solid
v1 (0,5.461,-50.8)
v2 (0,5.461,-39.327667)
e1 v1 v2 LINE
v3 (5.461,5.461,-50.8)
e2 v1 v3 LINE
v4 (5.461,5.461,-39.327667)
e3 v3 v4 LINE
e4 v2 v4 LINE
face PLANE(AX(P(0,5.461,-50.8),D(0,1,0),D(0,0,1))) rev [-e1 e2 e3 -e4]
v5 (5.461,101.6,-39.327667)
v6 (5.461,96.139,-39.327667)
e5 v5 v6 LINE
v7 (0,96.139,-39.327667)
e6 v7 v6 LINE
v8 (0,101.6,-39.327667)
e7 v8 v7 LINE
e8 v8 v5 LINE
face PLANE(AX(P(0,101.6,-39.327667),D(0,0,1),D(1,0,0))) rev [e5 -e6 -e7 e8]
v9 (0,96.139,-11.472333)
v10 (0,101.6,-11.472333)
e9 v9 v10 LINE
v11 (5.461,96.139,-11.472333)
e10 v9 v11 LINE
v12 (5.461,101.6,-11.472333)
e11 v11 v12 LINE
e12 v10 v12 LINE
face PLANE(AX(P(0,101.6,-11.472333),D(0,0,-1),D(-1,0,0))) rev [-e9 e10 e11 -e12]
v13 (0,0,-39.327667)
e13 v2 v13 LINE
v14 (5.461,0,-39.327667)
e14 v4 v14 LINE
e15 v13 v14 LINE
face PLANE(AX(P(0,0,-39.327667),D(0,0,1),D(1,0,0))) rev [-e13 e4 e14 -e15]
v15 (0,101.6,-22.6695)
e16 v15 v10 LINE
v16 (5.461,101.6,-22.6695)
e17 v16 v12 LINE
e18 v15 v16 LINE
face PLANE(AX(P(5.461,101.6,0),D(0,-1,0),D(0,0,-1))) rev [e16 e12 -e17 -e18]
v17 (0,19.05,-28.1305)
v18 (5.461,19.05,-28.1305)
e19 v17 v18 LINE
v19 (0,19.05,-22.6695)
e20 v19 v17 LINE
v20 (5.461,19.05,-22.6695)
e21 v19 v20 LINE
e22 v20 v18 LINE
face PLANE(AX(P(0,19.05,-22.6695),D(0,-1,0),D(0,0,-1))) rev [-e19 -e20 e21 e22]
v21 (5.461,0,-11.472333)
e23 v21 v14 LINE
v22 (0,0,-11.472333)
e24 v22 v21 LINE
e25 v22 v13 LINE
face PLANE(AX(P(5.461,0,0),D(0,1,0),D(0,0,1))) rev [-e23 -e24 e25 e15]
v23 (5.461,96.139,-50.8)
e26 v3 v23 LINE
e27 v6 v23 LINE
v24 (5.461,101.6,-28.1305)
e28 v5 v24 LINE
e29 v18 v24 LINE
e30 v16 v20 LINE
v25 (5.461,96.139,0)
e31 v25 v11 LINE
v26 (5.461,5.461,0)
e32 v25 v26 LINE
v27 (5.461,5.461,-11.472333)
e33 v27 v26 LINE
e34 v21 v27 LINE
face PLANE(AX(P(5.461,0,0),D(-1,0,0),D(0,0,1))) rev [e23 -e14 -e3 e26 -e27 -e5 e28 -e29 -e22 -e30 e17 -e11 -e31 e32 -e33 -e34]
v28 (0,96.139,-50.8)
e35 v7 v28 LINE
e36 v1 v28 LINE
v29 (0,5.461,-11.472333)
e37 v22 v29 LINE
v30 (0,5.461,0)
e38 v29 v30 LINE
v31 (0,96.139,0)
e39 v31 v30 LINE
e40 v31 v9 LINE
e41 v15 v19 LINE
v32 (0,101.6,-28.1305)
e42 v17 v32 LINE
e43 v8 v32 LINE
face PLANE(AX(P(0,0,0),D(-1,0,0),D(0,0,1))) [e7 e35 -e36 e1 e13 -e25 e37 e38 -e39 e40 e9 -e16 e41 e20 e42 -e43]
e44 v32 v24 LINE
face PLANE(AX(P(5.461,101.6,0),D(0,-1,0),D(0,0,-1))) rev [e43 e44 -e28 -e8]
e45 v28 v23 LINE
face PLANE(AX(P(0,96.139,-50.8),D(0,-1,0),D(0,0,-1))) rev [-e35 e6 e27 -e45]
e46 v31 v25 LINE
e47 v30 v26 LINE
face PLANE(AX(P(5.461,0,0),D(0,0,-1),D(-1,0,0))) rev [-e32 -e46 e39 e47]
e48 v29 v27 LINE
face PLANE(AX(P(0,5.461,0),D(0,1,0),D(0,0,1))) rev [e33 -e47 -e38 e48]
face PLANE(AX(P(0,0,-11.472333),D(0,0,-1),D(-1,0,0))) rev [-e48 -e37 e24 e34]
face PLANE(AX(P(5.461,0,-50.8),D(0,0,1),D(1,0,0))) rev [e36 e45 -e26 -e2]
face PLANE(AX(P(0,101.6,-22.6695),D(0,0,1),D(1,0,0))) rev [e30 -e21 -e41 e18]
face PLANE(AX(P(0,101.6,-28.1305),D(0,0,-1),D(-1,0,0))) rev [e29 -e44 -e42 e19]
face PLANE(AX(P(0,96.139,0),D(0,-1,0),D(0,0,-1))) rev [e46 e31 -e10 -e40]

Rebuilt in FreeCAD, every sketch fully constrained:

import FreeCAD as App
import Part
import Sketcher
Q = App.Units.Quantity


def add_polygon(sketch, points):
    """Adds a closed chain of lines whose ends are joined by coincident constraints."""
    first, n = sketch.GeometryCount, len(points)
    for a, b in zip(points, points[1:] + points[:1]):
        sketch.addGeometry(Part.LineSegment(App.Vector(*a, 0), App.Vector(*b, 0)), False)
    for i in range(n):
        sketch.addConstraint(Sketcher.Constraint("Coincident", first + i, 2, first + (i + 1) % n, 1))

doc = App.newDocument("Part")
params = doc.addObject("Spreadsheet::Sheet", "Params")
for row, (alias, value) in enumerate([
    ("sketch1_width", "4 in"),
    ("sketch1_height", "2 in"),
    ("pad1_length", "0.215 in"),
    ("sketch2_width", "3.25 in"),
    ("sketch2_width2", "0.215 in"),
    ("pocket1_length", "0.215 in"),
], start=1):
    params.set(f"A{row}", alias)
    params.set(f"B{row}", "=" + value)
    params.setAlias(f"B{row}", alias)

body = doc.addObject("PartDesign::Body", "Body")

# Sketch on YZ plane
sketch1 = body.newObject("Sketcher::SketchObject", "Sketch")
sketch1.AttachmentSupport = (doc.getObject("YZ_Plane"), [""])
sketch1.MapMode = "FlatFace"
add_polygon(sketch1, [(102, 0), (0, 0), (0, -51), (102, -51)])  # lines 0-3
sketch1.addConstraint([
    Sketcher.Constraint("Horizontal", 0),
    Sketcher.Constraint("Vertical", 1),
    Sketcher.Constraint("Horizontal", 2),
    Sketcher.Constraint("Vertical", 3),
    Sketcher.Constraint("Coincident", 0, 2, -1, 1),
    Sketcher.Constraint("DistanceX", 0, 2, 0, 1, Q("4 in")),
    Sketcher.Constraint("DistanceY", 1, 2, 1, 1, Q("2 in")),
])
sketch1.setExpression("Constraints[9]", "Params.sketch1_width")
sketch1.setExpression("Constraints[10]", "Params.sketch1_height")
pad1 = body.newObject("PartDesign::Pad", "Pad")
pad1.Profile = sketch1
pad1.setExpression("Length", "Params.pad1_length")

# Sketch on YZ plane
sketch2 = body.newObject("Sketcher::SketchObject", "Sketch001")
sketch2.AttachmentSupport = (doc.getObject("YZ_Plane"), [""])
sketch2.MapMode = "FlatFace"
sketch2.AttachmentOffset = App.Placement(App.Vector(0, 0, 0.215 * 25.4), App.Rotation())
add_polygon(sketch2, [(102, -39), (96, -39), (96, -51), (102, -51)])  # lines 0-3
add_polygon(sketch2, [(102, -23), (19, -23), (19, -28), (102, -28)])  # lines 4-7
add_polygon(sketch2, [(102, 0), (96, 0), (96, -11), (102, -11)])  # lines 8-11
add_polygon(sketch2, [(5, -39), (0, -39), (0, -51), (5, -51)])  # lines 12-15
add_polygon(sketch2, [(5, 0), (0, 0), (0, -11), (5, -11)])  # lines 16-19
sketch2.addConstraint([
    Sketcher.Constraint("Horizontal", 0),
    Sketcher.Constraint("Vertical", 1),
    Sketcher.Constraint("Horizontal", 2),
    Sketcher.Constraint("Vertical", 3),
    Sketcher.Constraint("Horizontal", 4),
    Sketcher.Constraint("Vertical", 5),
    Sketcher.Constraint("Horizontal", 6),
    Sketcher.Constraint("Vertical", 7),
    Sketcher.Constraint("Horizontal", 8),
    Sketcher.Constraint("Vertical", 9),
    Sketcher.Constraint("Horizontal", 10),
    Sketcher.Constraint("Vertical", 11),
    Sketcher.Constraint("Horizontal", 12),
    Sketcher.Constraint("Vertical", 13),
    Sketcher.Constraint("Horizontal", 14),
    Sketcher.Constraint("Vertical", 15),
    Sketcher.Constraint("Horizontal", 16),
    Sketcher.Constraint("Vertical", 17),
    Sketcher.Constraint("Horizontal", 18),
    Sketcher.Constraint("Vertical", 19),
    Sketcher.Constraint("Coincident", 16, 2, -1, 1),
    Sketcher.Constraint("PointOnObject", 8, 2, -1),
    Sketcher.Constraint("PointOnObject", 12, 2, -2),
    Sketcher.Constraint("Horizontal", 3, 2, 12, 2),
    Sketcher.Constraint("Horizontal", 2, 2, 13, 2),
    Sketcher.Constraint("Horizontal", 10, 2, 17, 2),
    Sketcher.Constraint("Vertical", 3, 2, 6, 2),
    Sketcher.Constraint("Vertical", 1, 2, 8, 2),
    Sketcher.Constraint("Vertical", 7, 2, 10, 2),
    Sketcher.Constraint("Vertical", 15, 2, 18, 2),
    Sketcher.Constraint("Equal", 10, 12),
    Sketcher.Constraint("Equal", 18, 5),
    Sketcher.Constraint("Equal", 3, 9),
    Sketcher.Constraint("DistanceY", 1, 2, -1, 1, Q("2 in")),
    Sketcher.Constraint("DistanceX", -1, 1, 2, 2, Q("4 in")),
    Sketcher.Constraint("DistanceX", 4, 2, 4, 1, Q("3.25 in")),
    Sketcher.Constraint("DistanceX", 0, 2, 0, 1, Q("0.215 in")),
    Sketcher.Constraint("DistanceY", 4, 2, -1, 1, Q("0.8925 in")),
    Sketcher.Constraint("DistanceY", 1, 2, 1, 1, Q("11.472333 mm")),
])
sketch2.setExpression("Constraints[55]", "Params.sketch2_width")
sketch2.setExpression("Constraints[56]", "Params.sketch2_width2")
pocket1 = body.newObject("PartDesign::Pocket", "Pocket")
pocket1.Profile = sketch2
pocket1.setExpression("Length", "Params.pocket1_length")

doc.recompute()
